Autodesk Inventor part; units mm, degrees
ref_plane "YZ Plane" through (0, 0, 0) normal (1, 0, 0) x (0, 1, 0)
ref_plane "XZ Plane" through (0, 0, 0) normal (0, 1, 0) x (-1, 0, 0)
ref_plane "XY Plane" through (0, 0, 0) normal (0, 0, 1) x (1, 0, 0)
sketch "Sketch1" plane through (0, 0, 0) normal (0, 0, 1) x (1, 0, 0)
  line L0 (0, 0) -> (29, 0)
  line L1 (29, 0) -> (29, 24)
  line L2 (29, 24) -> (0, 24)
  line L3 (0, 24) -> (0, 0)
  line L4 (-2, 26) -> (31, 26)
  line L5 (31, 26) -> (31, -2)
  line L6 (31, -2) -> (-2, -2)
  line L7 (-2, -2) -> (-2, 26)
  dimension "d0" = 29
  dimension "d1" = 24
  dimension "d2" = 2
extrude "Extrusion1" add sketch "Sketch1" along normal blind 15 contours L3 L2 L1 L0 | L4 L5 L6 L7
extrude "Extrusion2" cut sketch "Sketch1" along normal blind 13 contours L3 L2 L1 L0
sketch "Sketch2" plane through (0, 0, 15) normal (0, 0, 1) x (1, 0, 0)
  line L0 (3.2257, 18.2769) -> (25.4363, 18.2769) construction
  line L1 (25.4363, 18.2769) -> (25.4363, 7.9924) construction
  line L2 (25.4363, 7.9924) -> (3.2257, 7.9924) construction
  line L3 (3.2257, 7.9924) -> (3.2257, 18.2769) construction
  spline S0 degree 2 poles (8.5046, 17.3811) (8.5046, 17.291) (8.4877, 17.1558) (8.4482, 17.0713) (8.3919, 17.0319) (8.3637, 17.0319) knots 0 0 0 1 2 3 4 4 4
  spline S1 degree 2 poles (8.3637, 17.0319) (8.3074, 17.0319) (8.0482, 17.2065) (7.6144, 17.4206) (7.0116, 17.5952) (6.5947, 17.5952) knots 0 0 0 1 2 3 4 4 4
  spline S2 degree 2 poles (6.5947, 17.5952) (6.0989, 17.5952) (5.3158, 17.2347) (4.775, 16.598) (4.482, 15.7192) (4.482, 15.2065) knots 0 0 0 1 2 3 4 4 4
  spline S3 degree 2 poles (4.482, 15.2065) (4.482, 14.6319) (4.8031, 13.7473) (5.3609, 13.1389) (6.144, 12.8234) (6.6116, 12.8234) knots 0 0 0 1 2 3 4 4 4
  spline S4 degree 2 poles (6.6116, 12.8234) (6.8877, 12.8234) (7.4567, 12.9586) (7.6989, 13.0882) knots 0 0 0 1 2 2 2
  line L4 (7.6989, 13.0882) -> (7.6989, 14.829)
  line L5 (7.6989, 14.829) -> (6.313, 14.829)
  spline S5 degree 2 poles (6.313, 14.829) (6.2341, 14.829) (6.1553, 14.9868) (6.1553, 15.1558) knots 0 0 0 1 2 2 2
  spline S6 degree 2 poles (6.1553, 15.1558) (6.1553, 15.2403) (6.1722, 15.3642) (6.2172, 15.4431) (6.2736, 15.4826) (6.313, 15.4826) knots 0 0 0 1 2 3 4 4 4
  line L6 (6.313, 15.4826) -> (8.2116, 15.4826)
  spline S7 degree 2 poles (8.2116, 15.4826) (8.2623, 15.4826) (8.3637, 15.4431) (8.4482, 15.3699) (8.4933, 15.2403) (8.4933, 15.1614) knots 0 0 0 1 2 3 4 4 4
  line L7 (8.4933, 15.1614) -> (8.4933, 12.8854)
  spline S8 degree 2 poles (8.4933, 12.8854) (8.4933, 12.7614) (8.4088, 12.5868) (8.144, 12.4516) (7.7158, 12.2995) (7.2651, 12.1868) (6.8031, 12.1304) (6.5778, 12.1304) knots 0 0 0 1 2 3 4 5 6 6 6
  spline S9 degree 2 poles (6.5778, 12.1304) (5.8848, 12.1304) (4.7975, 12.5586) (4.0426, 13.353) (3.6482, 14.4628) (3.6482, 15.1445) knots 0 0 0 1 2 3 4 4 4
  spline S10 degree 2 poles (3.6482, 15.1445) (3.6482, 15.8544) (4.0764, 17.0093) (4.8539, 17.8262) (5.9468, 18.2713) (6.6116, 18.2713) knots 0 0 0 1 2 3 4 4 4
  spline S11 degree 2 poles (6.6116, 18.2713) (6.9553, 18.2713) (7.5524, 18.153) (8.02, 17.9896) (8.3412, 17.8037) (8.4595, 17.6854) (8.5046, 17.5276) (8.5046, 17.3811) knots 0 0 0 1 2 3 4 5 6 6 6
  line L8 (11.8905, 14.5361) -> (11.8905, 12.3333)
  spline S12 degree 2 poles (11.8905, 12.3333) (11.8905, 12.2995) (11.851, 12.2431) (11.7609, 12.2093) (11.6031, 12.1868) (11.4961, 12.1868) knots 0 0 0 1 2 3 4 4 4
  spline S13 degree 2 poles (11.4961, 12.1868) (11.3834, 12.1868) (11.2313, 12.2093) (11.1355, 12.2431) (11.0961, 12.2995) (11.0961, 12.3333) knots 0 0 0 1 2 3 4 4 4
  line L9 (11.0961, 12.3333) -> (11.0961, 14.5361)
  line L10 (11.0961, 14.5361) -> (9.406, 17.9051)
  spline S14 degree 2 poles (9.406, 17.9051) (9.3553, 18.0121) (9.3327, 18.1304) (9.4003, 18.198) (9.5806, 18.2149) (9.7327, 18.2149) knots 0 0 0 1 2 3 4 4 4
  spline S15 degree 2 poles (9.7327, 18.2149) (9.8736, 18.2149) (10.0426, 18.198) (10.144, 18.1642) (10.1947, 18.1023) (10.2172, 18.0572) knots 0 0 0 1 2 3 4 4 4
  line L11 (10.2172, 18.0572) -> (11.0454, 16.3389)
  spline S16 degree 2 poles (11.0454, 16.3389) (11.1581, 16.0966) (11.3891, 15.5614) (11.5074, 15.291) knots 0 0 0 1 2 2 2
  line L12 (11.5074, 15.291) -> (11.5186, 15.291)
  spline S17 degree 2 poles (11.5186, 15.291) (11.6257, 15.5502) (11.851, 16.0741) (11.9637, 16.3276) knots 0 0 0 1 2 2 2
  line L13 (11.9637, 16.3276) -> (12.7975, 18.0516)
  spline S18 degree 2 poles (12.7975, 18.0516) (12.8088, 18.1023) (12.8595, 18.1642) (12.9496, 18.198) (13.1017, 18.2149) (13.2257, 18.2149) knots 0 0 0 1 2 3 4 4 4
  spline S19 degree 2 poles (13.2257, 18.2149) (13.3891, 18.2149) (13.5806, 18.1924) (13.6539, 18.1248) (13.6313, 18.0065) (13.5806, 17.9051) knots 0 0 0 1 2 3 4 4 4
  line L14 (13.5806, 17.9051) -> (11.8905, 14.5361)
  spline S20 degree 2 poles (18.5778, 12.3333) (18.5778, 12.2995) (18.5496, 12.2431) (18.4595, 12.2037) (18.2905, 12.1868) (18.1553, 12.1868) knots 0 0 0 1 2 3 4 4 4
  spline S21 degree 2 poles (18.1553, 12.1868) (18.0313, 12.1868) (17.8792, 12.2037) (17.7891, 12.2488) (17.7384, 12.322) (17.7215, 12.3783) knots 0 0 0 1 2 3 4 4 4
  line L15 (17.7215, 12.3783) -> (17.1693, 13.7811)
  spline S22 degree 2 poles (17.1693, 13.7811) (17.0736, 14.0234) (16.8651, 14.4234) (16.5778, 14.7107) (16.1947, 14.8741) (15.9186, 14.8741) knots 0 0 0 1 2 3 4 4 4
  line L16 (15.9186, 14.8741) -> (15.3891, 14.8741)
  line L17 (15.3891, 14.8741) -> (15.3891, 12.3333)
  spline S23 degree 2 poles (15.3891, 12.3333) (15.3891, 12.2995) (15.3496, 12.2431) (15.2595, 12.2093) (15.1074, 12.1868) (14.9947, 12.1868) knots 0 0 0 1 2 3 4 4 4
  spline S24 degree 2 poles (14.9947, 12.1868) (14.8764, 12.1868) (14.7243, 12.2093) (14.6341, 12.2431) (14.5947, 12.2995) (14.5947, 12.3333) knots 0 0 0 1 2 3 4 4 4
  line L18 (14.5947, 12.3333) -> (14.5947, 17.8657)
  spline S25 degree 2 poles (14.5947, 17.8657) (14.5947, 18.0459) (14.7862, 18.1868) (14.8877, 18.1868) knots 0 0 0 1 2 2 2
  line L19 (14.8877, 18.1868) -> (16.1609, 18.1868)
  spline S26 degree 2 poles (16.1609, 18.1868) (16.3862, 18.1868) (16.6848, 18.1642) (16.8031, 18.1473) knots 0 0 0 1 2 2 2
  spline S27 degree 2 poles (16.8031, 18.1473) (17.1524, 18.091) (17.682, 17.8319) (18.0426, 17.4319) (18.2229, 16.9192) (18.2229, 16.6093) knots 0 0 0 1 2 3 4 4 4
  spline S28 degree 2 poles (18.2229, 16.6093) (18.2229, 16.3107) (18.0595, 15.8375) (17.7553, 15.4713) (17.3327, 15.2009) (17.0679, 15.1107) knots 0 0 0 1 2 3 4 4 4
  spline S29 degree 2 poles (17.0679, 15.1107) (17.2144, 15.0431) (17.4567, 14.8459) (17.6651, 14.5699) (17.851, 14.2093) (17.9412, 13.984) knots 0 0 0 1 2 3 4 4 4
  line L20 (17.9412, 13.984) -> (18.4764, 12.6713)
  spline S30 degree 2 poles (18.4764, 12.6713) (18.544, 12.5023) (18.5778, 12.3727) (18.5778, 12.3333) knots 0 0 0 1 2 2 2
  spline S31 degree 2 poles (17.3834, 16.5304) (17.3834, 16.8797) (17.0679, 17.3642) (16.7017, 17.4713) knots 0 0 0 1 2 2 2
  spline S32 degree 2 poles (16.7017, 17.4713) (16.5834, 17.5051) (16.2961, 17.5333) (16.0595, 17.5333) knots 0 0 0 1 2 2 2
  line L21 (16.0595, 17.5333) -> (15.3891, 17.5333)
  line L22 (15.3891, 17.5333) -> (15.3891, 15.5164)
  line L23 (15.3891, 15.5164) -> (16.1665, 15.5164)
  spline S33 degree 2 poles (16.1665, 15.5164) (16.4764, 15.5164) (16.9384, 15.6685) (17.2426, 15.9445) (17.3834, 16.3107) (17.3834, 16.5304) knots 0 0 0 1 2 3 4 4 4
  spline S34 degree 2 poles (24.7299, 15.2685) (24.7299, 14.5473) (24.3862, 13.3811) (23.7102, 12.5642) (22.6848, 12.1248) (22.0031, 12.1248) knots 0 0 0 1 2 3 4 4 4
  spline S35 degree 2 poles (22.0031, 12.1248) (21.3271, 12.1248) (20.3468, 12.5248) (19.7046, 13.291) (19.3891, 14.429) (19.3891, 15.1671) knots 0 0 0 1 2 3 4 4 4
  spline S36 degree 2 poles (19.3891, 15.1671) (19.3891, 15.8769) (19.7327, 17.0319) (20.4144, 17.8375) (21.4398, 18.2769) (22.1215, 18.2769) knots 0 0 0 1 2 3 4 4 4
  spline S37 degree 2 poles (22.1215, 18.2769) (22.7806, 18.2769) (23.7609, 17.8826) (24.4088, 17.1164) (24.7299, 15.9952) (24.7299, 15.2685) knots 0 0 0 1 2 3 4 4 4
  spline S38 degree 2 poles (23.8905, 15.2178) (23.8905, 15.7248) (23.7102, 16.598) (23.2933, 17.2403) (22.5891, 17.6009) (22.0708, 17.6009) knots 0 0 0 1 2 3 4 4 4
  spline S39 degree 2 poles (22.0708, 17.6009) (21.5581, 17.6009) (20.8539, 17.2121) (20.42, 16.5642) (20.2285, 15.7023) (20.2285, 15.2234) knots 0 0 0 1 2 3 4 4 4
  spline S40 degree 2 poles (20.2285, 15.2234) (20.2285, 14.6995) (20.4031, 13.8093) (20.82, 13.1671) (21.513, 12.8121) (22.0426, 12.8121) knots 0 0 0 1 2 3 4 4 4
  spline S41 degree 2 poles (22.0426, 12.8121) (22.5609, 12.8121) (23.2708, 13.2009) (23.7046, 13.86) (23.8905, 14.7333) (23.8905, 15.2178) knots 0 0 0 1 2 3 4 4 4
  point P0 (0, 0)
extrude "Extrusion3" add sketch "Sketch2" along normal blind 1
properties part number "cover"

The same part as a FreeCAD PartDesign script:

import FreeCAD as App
import Part
import Sketcher

doc = App.newDocument("Part")
body = doc.addObject("PartDesign::Body", "Body")

# Sketch on XY plane
sketch1 = body.newObject("Sketcher::SketchObject", "Sketch")
sketch1.AttachmentSupport = (doc.getObject("XY_Plane"), [""])
sketch1.MapMode = "FlatFace"
sketch1.addGeometry([
    Part.LineSegment(App.Vector(31, 26, 0), App.Vector(-2, 26, 0)),
    Part.LineSegment(App.Vector(-2, 26, 0), App.Vector(-2, -2, 0)),
    Part.LineSegment(App.Vector(-2, -2, 0), App.Vector(31, -2, 0)),
    Part.LineSegment(App.Vector(31, -2, 0), App.Vector(31, 26, 0)),
], False)
sketch1.addConstraint([
    Sketcher.Constraint("Coincident", 0, 2, 1, 1),
    Sketcher.Constraint("Coincident", 1, 2, 2, 1),
    Sketcher.Constraint("Coincident", 2, 2, 3, 1),
    Sketcher.Constraint("Coincident", 3, 2, 0, 1),
    Sketcher.Constraint("Horizontal", 0),
    Sketcher.Constraint("Vertical", 1),
    Sketcher.Constraint("Horizontal", 2),
    Sketcher.Constraint("Vertical", 3),
    Sketcher.Constraint("DistanceX", 0, 2, -1, 1, 2.0),
    Sketcher.Constraint("DistanceY", 1, 2, -1, 1, 2.0),
    Sketcher.Constraint("DistanceX", 0, 2, 0, 1, 33.0),
    Sketcher.Constraint("DistanceY", 1, 2, 1, 1, 28.0),
])
pad1 = body.newObject("PartDesign::Pad", "Pad")
pad1.Profile = sketch1
pad1.Length = 15

# Sketch on XY plane
sketch2 = body.newObject("Sketcher::SketchObject", "Sketch001")
sketch2.AttachmentSupport = (doc.getObject("XY_Plane"), [""])
sketch2.MapMode = "FlatFace"
sketch2.addGeometry([
    Part.LineSegment(App.Vector(0, 24, 0), App.Vector(0, 0, 0)),
    Part.LineSegment(App.Vector(0, 0, 0), App.Vector(29, 0, 0)),
    Part.LineSegment(App.Vector(29, 0, 0), App.Vector(29, 24, 0)),
    Part.LineSegment(App.Vector(29, 24, 0), App.Vector(0, 24, 0)),
], False)
sketch2.addConstraint([
    Sketcher.Constraint("Coincident", 0, 2, 1, 1),
    Sketcher.Constraint("Coincident", 1, 2, 2, 1),
    Sketcher.Constraint("Coincident", 2, 2, 3, 1),
    Sketcher.Constraint("Coincident", 3, 2, 0, 1),
    Sketcher.Constraint("Vertical", 0),
    Sketcher.Constraint("Horizontal", 1),
    Sketcher.Constraint("Vertical", 2),
    Sketcher.Constraint("Horizontal", 3),
    Sketcher.Constraint("Coincident", 0, 2, -1, 1),
    Sketcher.Constraint("DistanceX", 1, 1, 1, 2, 29.0),
    Sketcher.Constraint("DistanceY", 0, 2, 0, 1, 24.0),
])
pocket1 = body.newObject("PartDesign::Pocket", "Pocket")
pocket1.Profile = sketch2
pocket1.Length = 13
pocket1.Reversed = True

# Sketch on XY plane
sketch3 = body.newObject("Sketcher::SketchObject", "Sketch002")
sketch3.AttachmentSupport = (doc.getObject("XY_Plane"), [""])
sketch3.MapMode = "FlatFace"
sketch3.AttachmentOffset = App.Placement(App.Vector(0, 0, 15), App.Rotation())
sketch3.addGeometry([
    Part.BSplineCurve([App.Vector(8.5046, 17.3811, 0), App.Vector(8.5046, 17.291, 0), App.Vector(8.4877, 17.1558, 0), App.Vector(8.4482, 17.0713, 0), App.Vector(8.3919, 17.0319, 0), App.Vector(8.3637, 17.0319, 0)], [3, 1, 1, 1, 3], [0, 1, 2, 3, 4], False, 2, [1, 1, 1, 1, 1, 1], False),  # 0
    Part.BSplineCurve([App.Vector(6.6116, 18.2713, 0), App.Vector(6.9553, 18.2713, 0), App.Vector(7.5524, 18.153, 0), App.Vector(8.02, 17.9896, 0), App.Vector(8.3412, 17.8037, 0), App.Vector(8.4595, 17.6854, 0), App.Vector(8.5046, 17.5276, 0), App.Vector(8.5046, 17.3811, 0)], [3, 1, 1, 1, 1, 1, 3], [0, 1, 2, 3, 4, 5, 6], False, 2, [1, 1, 1, 1, 1, 1, 1, 1], False),  # 1
    Part.BSplineCurve([App.Vector(3.6482, 15.1445, 0), App.Vector(3.6482, 15.8544, 0), App.Vector(4.0764, 17.0093, 0), App.Vector(4.8539, 17.8262, 0), App.Vector(5.9468, 18.2713, 0), App.Vector(6.6116, 18.2713, 0)], [3, 1, 1, 1, 3], [0, 1, 2, 3, 4], False, 2, [1, 1, 1, 1, 1, 1], False),  # 2
    Part.BSplineCurve([App.Vector(6.5778, 12.1304, 0), App.Vector(5.8848, 12.1304, 0), App.Vector(4.7975, 12.5586, 0), App.Vector(4.0426, 13.353, 0), App.Vector(3.6482, 14.4628, 0), App.Vector(3.6482, 15.1445, 0)], [3, 1, 1, 1, 3], [0, 1, 2, 3, 4], False, 2, [1, 1, 1, 1, 1, 1], False),  # 3
    Part.BSplineCurve([App.Vector(8.4933, 12.8854, 0), App.Vector(8.4933, 12.7614, 0), App.Vector(8.4088, 12.5868, 0), App.Vector(8.144, 12.4516, 0), App.Vector(7.7158, 12.2995, 0), App.Vector(7.2651, 12.1868, 0), App.Vector(6.8031, 12.1304, 0), App.Vector(6.5778, 12.1304, 0)], [3, 1, 1, 1, 1, 1, 3], [0, 1, 2, 3, 4, 5, 6], False, 2, [1, 1, 1, 1, 1, 1, 1, 1], False),  # 4
    Part.LineSegment(App.Vector(8.4933, 12.8854, 0), App.Vector(8.4933, 15.1614, 0)),  # 5
    Part.BSplineCurve([App.Vector(8.2116, 15.4826, 0), App.Vector(8.2623, 15.4826, 0), App.Vector(8.3637, 15.4431, 0), App.Vector(8.4482, 15.3699, 0), App.Vector(8.4933, 15.2403, 0), App.Vector(8.4933, 15.1614, 0)], [3, 1, 1, 1, 3], [0, 1, 2, 3, 4], False, 2, [1, 1, 1, 1, 1, 1], False),  # 6
    Part.LineSegment(App.Vector(8.2116, 15.4826, 0), App.Vector(6.313, 15.4826, 0)),  # 7
    Part.BSplineCurve([App.Vector(6.1553, 15.1558, 0), App.Vector(6.1553, 15.2403, 0), App.Vector(6.1722, 15.3642, 0), App.Vector(6.2172, 15.4431, 0), App.Vector(6.2736, 15.4826, 0), App.Vector(6.313, 15.4826, 0)], [3, 1, 1, 1, 3], [0, 1, 2, 3, 4], False, 2, [1, 1, 1, 1, 1, 1], False),  # 8
    Part.BSplineCurve([App.Vector(6.313, 14.829, 0), App.Vector(6.2341, 14.829, 0), App.Vector(6.1553, 14.9868, 0), App.Vector(6.1553, 15.1558, 0)], [3, 1, 3], [0, 1, 2], False, 2, [1, 1, 1, 1], False),  # 9
    Part.LineSegment(App.Vector(6.313, 14.829, 0), App.Vector(7.6989, 14.829, 0)),  # 10
    Part.LineSegment(App.Vector(7.6989, 14.829, 0), App.Vector(7.6989, 13.0882, 0)),  # 11
    Part.BSplineCurve([App.Vector(6.6116, 12.8234, 0), App.Vector(6.8877, 12.8234, 0), App.Vector(7.4567, 12.9586, 0), App.Vector(7.6989, 13.0882, 0)], [3, 1, 3], [0, 1, 2], False, 2, [1, 1, 1, 1], False),  # 12
    Part.BSplineCurve([App.Vector(4.482, 15.2065, 0), App.Vector(4.482, 14.6319, 0), App.Vector(4.8031, 13.7473, 0), App.Vector(5.3609, 13.1389, 0), App.Vector(6.144, 12.8234, 0), App.Vector(6.6116, 12.8234, 0)], [3, 1, 1, 1, 3], [0, 1, 2, 3, 4], False, 2, [1, 1, 1, 1, 1, 1], False),  # 13
    Part.BSplineCurve([App.Vector(6.5947, 17.5952, 0), App.Vector(6.0989, 17.5952, 0), App.Vector(5.3158, 17.2347, 0), App.Vector(4.775, 16.598, 0), App.Vector(4.482, 15.7192, 0), App.Vector(4.482, 15.2065, 0)], [3, 1, 1, 1, 3], [0, 1, 2, 3, 4], False, 2, [1, 1, 1, 1, 1, 1], False),  # 14
    Part.BSplineCurve([App.Vector(8.3637, 17.0319, 0), App.Vector(8.3074, 17.0319, 0), App.Vector(8.0482, 17.2065, 0), App.Vector(7.6144, 17.4206, 0), App.Vector(7.0116, 17.5952, 0), App.Vector(6.5947, 17.5952, 0)], [3, 1, 1, 1, 3], [0, 1, 2, 3, 4], False, 2, [1, 1, 1, 1, 1, 1], False),  # 15
    Part.LineSegment(App.Vector(11.8905, 12.3333, 0), App.Vector(11.8905, 14.5361, 0)),  # 16
    Part.LineSegment(App.Vector(11.8905, 14.5361, 0), App.Vector(13.5806, 17.9051, 0)),  # 17
    Part.BSplineCurve([App.Vector(13.2257, 18.2149, 0), App.Vector(13.3891, 18.2149, 0), App.Vector(13.5806, 18.1924, 0), App.Vector(13.6539, 18.1248, 0), App.Vector(13.6313, 18.0065, 0), App.Vector(13.5806, 17.9051, 0)], [3, 1, 1, 1, 3], [0, 1, 2, 3, 4], False, 2, [1, 1, 1, 1, 1, 1], False),  # 18
    Part.BSplineCurve([App.Vector(12.7975, 18.0516, 0), App.Vector(12.8088, 18.1023, 0), App.Vector(12.8595, 18.1642, 0), App.Vector(12.9496, 18.198, 0), App.Vector(13.1017, 18.2149, 0), App.Vector(13.2257, 18.2149, 0)], [3, 1, 1, 1, 3], [0, 1, 2, 3, 4], False, 2, [1, 1, 1, 1, 1, 1], False),  # 19
    Part.LineSegment(App.Vector(12.7975, 18.0516, 0), App.Vector(11.9637, 16.3276, 0)),  # 20
    Part.BSplineCurve([App.Vector(11.5186, 15.291, 0), App.Vector(11.6257, 15.5502, 0), App.Vector(11.851, 16.0741, 0), App.Vector(11.9637, 16.3276, 0)], [3, 1, 3], [0, 1, 2], False, 2, [1, 1, 1, 1], False),  # 21
    Part.LineSegment(App.Vector(11.5186, 15.291, 0), App.Vector(11.5074, 15.291, 0)),  # 22
    Part.BSplineCurve([App.Vector(11.0454, 16.3389, 0), App.Vector(11.1581, 16.0966, 0), App.Vector(11.3891, 15.5614, 0), App.Vector(11.5074, 15.291, 0)], [3, 1, 3], [0, 1, 2], False, 2, [1, 1, 1, 1], False),  # 23
    Part.LineSegment(App.Vector(11.0454, 16.3389, 0), App.Vector(10.2172, 18.0572, 0)),  # 24
    Part.BSplineCurve([App.Vector(9.7327, 18.2149, 0), App.Vector(9.8736, 18.2149, 0), App.Vector(10.0426, 18.198, 0), App.Vector(10.144, 18.1642, 0), App.Vector(10.1947, 18.1023, 0), App.Vector(10.2172, 18.0572, 0)], [3, 1, 1, 1, 3], [0, 1, 2, 3, 4], False, 2, [1, 1, 1, 1, 1, 1], False),  # 25
    Part.BSplineCurve([App.Vector(9.406, 17.9051, 0), App.Vector(9.3553, 18.0121, 0), App.Vector(9.3327, 18.1304, 0), App.Vector(9.4003, 18.198, 0), App.Vector(9.5806, 18.2149, 0), App.Vector(9.7327, 18.2149, 0)], [3, 1, 1, 1, 3], [0, 1, 2, 3, 4], False, 2, [1, 1, 1, 1, 1, 1], False),  # 26
    Part.LineSegment(App.Vector(9.406, 17.9051, 0), App.Vector(11.0961, 14.5361, 0)),  # 27
    Part.LineSegment(App.Vector(11.0961, 14.5361, 0), App.Vector(11.0961, 12.3333, 0)),  # 28
    Part.BSplineCurve([App.Vector(11.4961, 12.1868, 0), App.Vector(11.3834, 12.1868, 0), App.Vector(11.2313, 12.2093, 0), App.Vector(11.1355, 12.2431, 0), App.Vector(11.0961, 12.2995, 0), App.Vector(11.0961, 12.3333, 0)], [3, 1, 1, 1, 3], [0, 1, 2, 3, 4], False, 2, [1, 1, 1, 1, 1, 1], False),  # 29
    Part.BSplineCurve([App.Vector(11.8905, 12.3333, 0), App.Vector(11.8905, 12.2995, 0), App.Vector(11.851, 12.2431, 0), App.Vector(11.7609, 12.2093, 0), App.Vector(11.6031, 12.1868, 0), App.Vector(11.4961, 12.1868, 0)], [3, 1, 1, 1, 3], [0, 1, 2, 3, 4], False, 2, [1, 1, 1, 1, 1, 1], False),  # 30
    Part.BSplineCurve([App.Vector(18.5778, 12.3333, 0), App.Vector(18.5778, 12.2995, 0), App.Vector(18.5496, 12.2431, 0), App.Vector(18.4595, 12.2037, 0), App.Vector(18.2905, 12.1868, 0), App.Vector(18.1553, 12.1868, 0)], [3, 1, 1, 1, 3], [0, 1, 2, 3, 4], False, 2, [1, 1, 1, 1, 1, 1], False),  # 31
    Part.BSplineCurve([App.Vector(18.4764, 12.6713, 0), App.Vector(18.544, 12.5023, 0), App.Vector(18.5778, 12.3727, 0), App.Vector(18.5778, 12.3333, 0)], [3, 1, 3], [0, 1, 2], False, 2, [1, 1, 1, 1], False),  # 32
    Part.LineSegment(App.Vector(18.4764, 12.6713, 0), App.Vector(17.9412, 13.984, 0)),  # 33
    Part.BSplineCurve([App.Vector(17.0679, 15.1107, 0), App.Vector(17.2144, 15.0431, 0), App.Vector(17.4567, 14.8459, 0), App.Vector(17.6651, 14.5699, 0), App.Vector(17.851, 14.2093, 0), App.Vector(17.9412, 13.984, 0)], [3, 1, 1, 1, 3], [0, 1, 2, 3, 4], False, 2, [1, 1, 1, 1, 1, 1], False),  # 34
    Part.BSplineCurve([App.Vector(18.2229, 16.6093, 0), App.Vector(18.2229, 16.3107, 0), App.Vector(18.0595, 15.8375, 0), App.Vector(17.7553, 15.4713, 0), App.Vector(17.3327, 15.2009, 0), App.Vector(17.0679, 15.1107, 0)], [3, 1, 1, 1, 3], [0, 1, 2, 3, 4], False, 2, [1, 1, 1, 1, 1, 1], False),  # 35
    Part.BSplineCurve([App.Vector(16.8031, 18.1473, 0), App.Vector(17.1524, 18.091, 0), App.Vector(17.682, 17.8319, 0), App.Vector(18.0426, 17.4319, 0), App.Vector(18.2229, 16.9192, 0), App.Vector(18.2229, 16.6093, 0)], [3, 1, 1, 1, 3], [0, 1, 2, 3, 4], False, 2, [1, 1, 1, 1, 1, 1], False),  # 36
    Part.BSplineCurve([App.Vector(16.1609, 18.1868, 0), App.Vector(16.3862, 18.1868, 0), App.Vector(16.6848, 18.1642, 0), App.Vector(16.8031, 18.1473, 0)], [3, 1, 3], [0, 1, 2], False, 2, [1, 1, 1, 1], False),  # 37
    Part.LineSegment(App.Vector(16.1609, 18.1868, 0), App.Vector(14.8877, 18.1868, 0)),  # 38
    Part.BSplineCurve([App.Vector(14.5947, 17.8657, 0), App.Vector(14.5947, 18.0459, 0), App.Vector(14.7862, 18.1868, 0), App.Vector(14.8877, 18.1868, 0)], [3, 1, 3], [0, 1, 2], False, 2, [1, 1, 1, 1], False),  # 39
    Part.LineSegment(App.Vector(14.5947, 17.8657, 0), App.Vector(14.5947, 12.3333, 0)),  # 40
    Part.BSplineCurve([App.Vector(14.9947, 12.1868, 0), App.Vector(14.8764, 12.1868, 0), App.Vector(14.7243, 12.2093, 0), App.Vector(14.6341, 12.2431, 0), App.Vector(14.5947, 12.2995, 0), App.Vector(14.5947, 12.3333, 0)], [3, 1, 1, 1, 3], [0, 1, 2, 3, 4], False, 2, [1, 1, 1, 1, 1, 1], False),  # 41
    Part.BSplineCurve([App.Vector(15.3891, 12.3333, 0), App.Vector(15.3891, 12.2995, 0), App.Vector(15.3496, 12.2431, 0), App.Vector(15.2595, 12.2093, 0), App.Vector(15.1074, 12.1868, 0), App.Vector(14.9947, 12.1868, 0)], [3, 1, 1, 1, 3], [0, 1, 2, 3, 4], False, 2, [1, 1, 1, 1, 1, 1], False),  # 42
    Part.LineSegment(App.Vector(15.3891, 12.3333, 0), App.Vector(15.3891, 14.8741, 0)),  # 43
    Part.LineSegment(App.Vector(15.3891, 14.8741, 0), App.Vector(15.9186, 14.8741, 0)),  # 44
    Part.BSplineCurve([App.Vector(17.1693, 13.7811, 0), App.Vector(17.0736, 14.0234, 0), App.Vector(16.8651, 14.4234, 0), App.Vector(16.5778, 14.7107, 0), App.Vector(16.1947, 14.8741, 0), App.Vector(15.9186, 14.8741, 0)], [3, 1, 1, 1, 3], [0, 1, 2, 3, 4], False, 2, [1, 1, 1, 1, 1, 1], False),  # 45
    Part.LineSegment(App.Vector(17.1693, 13.7811, 0), App.Vector(17.7215, 12.3783, 0)),  # 46
    Part.BSplineCurve([App.Vector(18.1553, 12.1868, 0), App.Vector(18.0313, 12.1868, 0), App.Vector(17.8792, 12.2037, 0), App.Vector(17.7891, 12.2488, 0), App.Vector(17.7384, 12.322, 0), App.Vector(17.7215, 12.3783, 0)], [3, 1, 1, 1, 3], [0, 1, 2, 3, 4], False, 2, [1, 1, 1, 1, 1, 1], False),  # 47
    Part.BSplineCurve([App.Vector(17.3834, 16.5304, 0), App.Vector(17.3834, 16.8797, 0), App.Vector(17.0679, 17.3642, 0), App.Vector(16.7017, 17.4713, 0)], [3, 1, 3], [0, 1, 2], False, 2, [1, 1, 1, 1], False),  # 48
    Part.BSplineCurve([App.Vector(16.1665, 15.5164, 0), App.Vector(16.4764, 15.5164, 0), App.Vector(16.9384, 15.6685, 0), App.Vector(17.2426, 15.9445, 0), App.Vector(17.3834, 16.3107, 0), App.Vector(17.3834, 16.5304, 0)], [3, 1, 1, 1, 3], [0, 1, 2, 3, 4], False, 2, [1, 1, 1, 1, 1, 1], False),  # 49
    Part.LineSegment(App.Vector(16.1665, 15.5164, 0), App.Vector(15.3891, 15.5164, 0)),  # 50
    Part.LineSegment(App.Vector(15.3891, 15.5164, 0), App.Vector(15.3891, 17.5333, 0)),  # 51
    Part.LineSegment(App.Vector(15.3891, 17.5333, 0), App.Vector(16.0595, 17.5333, 0)),  # 52
    Part.BSplineCurve([App.Vector(16.7017, 17.4713, 0), App.Vector(16.5834, 17.5051, 0), App.Vector(16.2961, 17.5333, 0), App.Vector(16.0595, 17.5333, 0)], [3, 1, 3], [0, 1, 2], False, 2, [1, 1, 1, 1], False),  # 53
    Part.BSplineCurve([App.Vector(24.7299, 15.2685, 0), App.Vector(24.7299, 14.5473, 0), App.Vector(24.3862, 13.3811, 0), App.Vector(23.7102, 12.5642, 0), App.Vector(22.6848, 12.1248, 0), App.Vector(22.0031, 12.1248, 0)], [3, 1, 1, 1, 3], [0, 1, 2, 3, 4], False, 2, [1, 1, 1, 1, 1, 1], False),  # 54
    Part.BSplineCurve([App.Vector(22.1215, 18.2769, 0), App.Vector(22.7806, 18.2769, 0), App.Vector(23.7609, 17.8826, 0), App.Vector(24.4088, 17.1164, 0), App.Vector(24.7299, 15.9952, 0), App.Vector(24.7299, 15.2685, 0)], [3, 1, 1, 1, 3], [0, 1, 2, 3, 4], False, 2, [1, 1, 1, 1, 1, 1], False),  # 55
    Part.BSplineCurve([App.Vector(19.3891, 15.1671, 0), App.Vector(19.3891, 15.8769, 0), App.Vector(19.7327, 17.0319, 0), App.Vector(20.4144, 17.8375, 0), App.Vector(21.4398, 18.2769, 0), App.Vector(22.1215, 18.2769, 0)], [3, 1, 1, 1, 3], [0, 1, 2, 3, 4], False, 2, [1, 1, 1, 1, 1, 1], False),  # 56
    Part.BSplineCurve([App.Vector(22.0031, 12.1248, 0), App.Vector(21.3271, 12.1248, 0), App.Vector(20.3468, 12.5248, 0), App.Vector(19.7046, 13.291, 0), App.Vector(19.3891, 14.429, 0), App.Vector(19.3891, 15.1671, 0)], [3, 1, 1, 1, 3], [0, 1, 2, 3, 4], False, 2, [1, 1, 1, 1, 1, 1], False),  # 57
    Part.BSplineCurve([App.Vector(23.8905, 15.2178, 0), App.Vector(23.8905, 15.7248, 0), App.Vector(23.7102, 16.598, 0), App.Vector(23.2933, 17.2403, 0), App.Vector(22.5891, 17.6009, 0), App.Vector(22.0708, 17.6009, 0)], [3, 1, 1, 1, 3], [0, 1, 2, 3, 4], False, 2, [1, 1, 1, 1, 1, 1], False),  # 58
    Part.BSplineCurve([App.Vector(22.0426, 12.8121, 0), App.Vector(22.5609, 12.8121, 0), App.Vector(23.2708, 13.2009, 0), App.Vector(23.7046, 13.86, 0), App.Vector(23.8905, 14.7333, 0), App.Vector(23.8905, 15.2178, 0)], [3, 1, 1, 1, 3], [0, 1, 2, 3, 4], False, 2, [1, 1, 1, 1, 1, 1], False),  # 59
    Part.BSplineCurve([App.Vector(20.2285, 15.2234, 0), App.Vector(20.2285, 14.6995, 0), App.Vector(20.4031, 13.8093, 0), App.Vector(20.82, 13.1671, 0), App.Vector(21.513, 12.8121, 0), App.Vector(22.0426, 12.8121, 0)], [3, 1, 1, 1, 3], [0, 1, 2, 3, 4], False, 2, [1, 1, 1, 1, 1, 1], False),  # 60
    Part.BSplineCurve([App.Vector(22.0708, 17.6009, 0), App.Vector(21.5581, 17.6009, 0), App.Vector(20.8539, 17.2121, 0), App.Vector(20.42, 16.5642, 0), App.Vector(20.2285, 15.7023, 0), App.Vector(20.2285, 15.2234, 0)], [3, 1, 1, 1, 3], [0, 1, 2, 3, 4], False, 2, [1, 1, 1, 1, 1, 1], False),  # 61
], False)
sketch3.addConstraint([
    Sketcher.Constraint("Block", 0),
    Sketcher.Constraint("Block", 1),
    Sketcher.Constraint("Block", 2),
    Sketcher.Constraint("Block", 3),
    Sketcher.Constraint("Block", 4),
    Sketcher.Constraint("Block", 6),
    Sketcher.Constraint("Block", 8),
    Sketcher.Constraint("Block", 9),
    Sketcher.Constraint("Block", 12),
    Sketcher.Constraint("Block", 13),
    Sketcher.Constraint("Block", 14),
    Sketcher.Constraint("Block", 15),
    Sketcher.Constraint("Block", 18),
    Sketcher.Constraint("Block", 19),
    Sketcher.Constraint("Block", 21),
    Sketcher.Constraint("Block", 23),
    Sketcher.Constraint("Block", 25),
    Sketcher.Constraint("Block", 26),
    Sketcher.Constraint("Block", 29),
    Sketcher.Constraint("Block", 30),
    Sketcher.Constraint("Block", 31),
    Sketcher.Constraint("Block", 32),
    Sketcher.Constraint("Block", 34),
    Sketcher.Constraint("Block", 35),
    Sketcher.Constraint("Block", 36),
    Sketcher.Constraint("Block", 37),
    Sketcher.Constraint("Block", 39),
    Sketcher.Constraint("Block", 41),
    Sketcher.Constraint("Block", 42),
    Sketcher.Constraint("Block", 45),
    Sketcher.Constraint("Block", 47),
    Sketcher.Constraint("Block", 48),
    Sketcher.Constraint("Block", 49),
    Sketcher.Constraint("Block", 53),
    Sketcher.Constraint("Block", 54),
    Sketcher.Constraint("Block", 55),
    Sketcher.Constraint("Block", 56),
    Sketcher.Constraint("Block", 57),
    Sketcher.Constraint("Block", 58),
    Sketcher.Constraint("Block", 59),
    Sketcher.Constraint("Block", 60),
    Sketcher.Constraint("Block", 61),
    Sketcher.Constraint("Coincident", 4, 1, 5, 1),
    Sketcher.Constraint("Coincident", 5, 2, 6, 2),
    Sketcher.Constraint("Coincident", 6, 1, 7, 1),
    Sketcher.Constraint("Coincident", 7, 2, 8, 2),
    Sketcher.Constraint("Coincident", 9, 1, 10, 1),
    Sketcher.Constraint("Coincident", 10, 2, 11, 1),
    Sketcher.Constraint("Coincident", 11, 2, 12, 2),
    Sketcher.Constraint("Coincident", 16, 2, 17, 1),
    Sketcher.Constraint("Coincident", 17, 2, 18, 2),
    Sketcher.Constraint("Coincident", 19, 1, 20, 1),
    Sketcher.Constraint("Coincident", 20, 2, 21, 2),
    Sketcher.Constraint("Coincident", 21, 1, 22, 1),
    Sketcher.Constraint("Coincident", 22, 2, 23, 2),
    Sketcher.Constraint("Coincident", 23, 1, 24, 1),
    Sketcher.Constraint("Coincident", 24, 2, 25, 2),
    Sketcher.Constraint("Coincident", 26, 1, 27, 1),
    Sketcher.Constraint("Coincident", 27, 2, 28, 1),
    Sketcher.Constraint("Coincident", 28, 2, 29, 2),
    Sketcher.Constraint("Coincident", 30, 1, 16, 1),
    Sketcher.Constraint("Coincident", 32, 1, 33, 1),
    Sketcher.Constraint("Coincident", 33, 2, 34, 2),
    Sketcher.Constraint("Coincident", 37, 1, 38, 1),
    Sketcher.Constraint("Coincident", 38, 2, 39, 2),
    Sketcher.Constraint("Coincident", 39, 1, 40, 1),
    Sketcher.Constraint("Coincident", 40, 2, 41, 2),
    Sketcher.Constraint("Coincident", 42, 1, 43, 1),
    Sketcher.Constraint("Coincident", 43, 2, 44, 1),
    Sketcher.Constraint("Coincident", 44, 2, 45, 2),
    Sketcher.Constraint("Coincident", 45, 1, 46, 1),
    Sketcher.Constraint("Coincident", 46, 2, 47, 2),
    Sketcher.Constraint("Coincident", 49, 1, 50, 1),
    Sketcher.Constraint("Coincident", 50, 2, 51, 1),
    Sketcher.Constraint("Coincident", 51, 2, 52, 1),
    Sketcher.Constraint("Coincident", 52, 2, 53, 2),
    Sketcher.Constraint("Horizontal", 10),
    Sketcher.Constraint("Vertical", 11),
    Sketcher.Constraint("Vertical", 16),
    Sketcher.Constraint("Vertical", 28),
    Sketcher.Constraint("Vertical", 43),
    Sketcher.Constraint("Horizontal", 44),
    Sketcher.Constraint("Horizontal", 50),
    Sketcher.Constraint("Vertical", 51),
    Sketcher.Constraint("Horizontal", 52),
    Sketcher.Constraint("DistanceX", 50, 2, 50, 1, 0.7774),
    Sketcher.Constraint("DistanceY", 16, 1, 16, 2, 2.2028),
    Sketcher.Constraint("DistanceY", 28, 2, 28, 1, 2.2028),
])
pad2 = body.newObject("PartDesign::Pad", "Pad001")
pad2.Profile = sketch3
pad2.Length = 1

doc.recompute()
